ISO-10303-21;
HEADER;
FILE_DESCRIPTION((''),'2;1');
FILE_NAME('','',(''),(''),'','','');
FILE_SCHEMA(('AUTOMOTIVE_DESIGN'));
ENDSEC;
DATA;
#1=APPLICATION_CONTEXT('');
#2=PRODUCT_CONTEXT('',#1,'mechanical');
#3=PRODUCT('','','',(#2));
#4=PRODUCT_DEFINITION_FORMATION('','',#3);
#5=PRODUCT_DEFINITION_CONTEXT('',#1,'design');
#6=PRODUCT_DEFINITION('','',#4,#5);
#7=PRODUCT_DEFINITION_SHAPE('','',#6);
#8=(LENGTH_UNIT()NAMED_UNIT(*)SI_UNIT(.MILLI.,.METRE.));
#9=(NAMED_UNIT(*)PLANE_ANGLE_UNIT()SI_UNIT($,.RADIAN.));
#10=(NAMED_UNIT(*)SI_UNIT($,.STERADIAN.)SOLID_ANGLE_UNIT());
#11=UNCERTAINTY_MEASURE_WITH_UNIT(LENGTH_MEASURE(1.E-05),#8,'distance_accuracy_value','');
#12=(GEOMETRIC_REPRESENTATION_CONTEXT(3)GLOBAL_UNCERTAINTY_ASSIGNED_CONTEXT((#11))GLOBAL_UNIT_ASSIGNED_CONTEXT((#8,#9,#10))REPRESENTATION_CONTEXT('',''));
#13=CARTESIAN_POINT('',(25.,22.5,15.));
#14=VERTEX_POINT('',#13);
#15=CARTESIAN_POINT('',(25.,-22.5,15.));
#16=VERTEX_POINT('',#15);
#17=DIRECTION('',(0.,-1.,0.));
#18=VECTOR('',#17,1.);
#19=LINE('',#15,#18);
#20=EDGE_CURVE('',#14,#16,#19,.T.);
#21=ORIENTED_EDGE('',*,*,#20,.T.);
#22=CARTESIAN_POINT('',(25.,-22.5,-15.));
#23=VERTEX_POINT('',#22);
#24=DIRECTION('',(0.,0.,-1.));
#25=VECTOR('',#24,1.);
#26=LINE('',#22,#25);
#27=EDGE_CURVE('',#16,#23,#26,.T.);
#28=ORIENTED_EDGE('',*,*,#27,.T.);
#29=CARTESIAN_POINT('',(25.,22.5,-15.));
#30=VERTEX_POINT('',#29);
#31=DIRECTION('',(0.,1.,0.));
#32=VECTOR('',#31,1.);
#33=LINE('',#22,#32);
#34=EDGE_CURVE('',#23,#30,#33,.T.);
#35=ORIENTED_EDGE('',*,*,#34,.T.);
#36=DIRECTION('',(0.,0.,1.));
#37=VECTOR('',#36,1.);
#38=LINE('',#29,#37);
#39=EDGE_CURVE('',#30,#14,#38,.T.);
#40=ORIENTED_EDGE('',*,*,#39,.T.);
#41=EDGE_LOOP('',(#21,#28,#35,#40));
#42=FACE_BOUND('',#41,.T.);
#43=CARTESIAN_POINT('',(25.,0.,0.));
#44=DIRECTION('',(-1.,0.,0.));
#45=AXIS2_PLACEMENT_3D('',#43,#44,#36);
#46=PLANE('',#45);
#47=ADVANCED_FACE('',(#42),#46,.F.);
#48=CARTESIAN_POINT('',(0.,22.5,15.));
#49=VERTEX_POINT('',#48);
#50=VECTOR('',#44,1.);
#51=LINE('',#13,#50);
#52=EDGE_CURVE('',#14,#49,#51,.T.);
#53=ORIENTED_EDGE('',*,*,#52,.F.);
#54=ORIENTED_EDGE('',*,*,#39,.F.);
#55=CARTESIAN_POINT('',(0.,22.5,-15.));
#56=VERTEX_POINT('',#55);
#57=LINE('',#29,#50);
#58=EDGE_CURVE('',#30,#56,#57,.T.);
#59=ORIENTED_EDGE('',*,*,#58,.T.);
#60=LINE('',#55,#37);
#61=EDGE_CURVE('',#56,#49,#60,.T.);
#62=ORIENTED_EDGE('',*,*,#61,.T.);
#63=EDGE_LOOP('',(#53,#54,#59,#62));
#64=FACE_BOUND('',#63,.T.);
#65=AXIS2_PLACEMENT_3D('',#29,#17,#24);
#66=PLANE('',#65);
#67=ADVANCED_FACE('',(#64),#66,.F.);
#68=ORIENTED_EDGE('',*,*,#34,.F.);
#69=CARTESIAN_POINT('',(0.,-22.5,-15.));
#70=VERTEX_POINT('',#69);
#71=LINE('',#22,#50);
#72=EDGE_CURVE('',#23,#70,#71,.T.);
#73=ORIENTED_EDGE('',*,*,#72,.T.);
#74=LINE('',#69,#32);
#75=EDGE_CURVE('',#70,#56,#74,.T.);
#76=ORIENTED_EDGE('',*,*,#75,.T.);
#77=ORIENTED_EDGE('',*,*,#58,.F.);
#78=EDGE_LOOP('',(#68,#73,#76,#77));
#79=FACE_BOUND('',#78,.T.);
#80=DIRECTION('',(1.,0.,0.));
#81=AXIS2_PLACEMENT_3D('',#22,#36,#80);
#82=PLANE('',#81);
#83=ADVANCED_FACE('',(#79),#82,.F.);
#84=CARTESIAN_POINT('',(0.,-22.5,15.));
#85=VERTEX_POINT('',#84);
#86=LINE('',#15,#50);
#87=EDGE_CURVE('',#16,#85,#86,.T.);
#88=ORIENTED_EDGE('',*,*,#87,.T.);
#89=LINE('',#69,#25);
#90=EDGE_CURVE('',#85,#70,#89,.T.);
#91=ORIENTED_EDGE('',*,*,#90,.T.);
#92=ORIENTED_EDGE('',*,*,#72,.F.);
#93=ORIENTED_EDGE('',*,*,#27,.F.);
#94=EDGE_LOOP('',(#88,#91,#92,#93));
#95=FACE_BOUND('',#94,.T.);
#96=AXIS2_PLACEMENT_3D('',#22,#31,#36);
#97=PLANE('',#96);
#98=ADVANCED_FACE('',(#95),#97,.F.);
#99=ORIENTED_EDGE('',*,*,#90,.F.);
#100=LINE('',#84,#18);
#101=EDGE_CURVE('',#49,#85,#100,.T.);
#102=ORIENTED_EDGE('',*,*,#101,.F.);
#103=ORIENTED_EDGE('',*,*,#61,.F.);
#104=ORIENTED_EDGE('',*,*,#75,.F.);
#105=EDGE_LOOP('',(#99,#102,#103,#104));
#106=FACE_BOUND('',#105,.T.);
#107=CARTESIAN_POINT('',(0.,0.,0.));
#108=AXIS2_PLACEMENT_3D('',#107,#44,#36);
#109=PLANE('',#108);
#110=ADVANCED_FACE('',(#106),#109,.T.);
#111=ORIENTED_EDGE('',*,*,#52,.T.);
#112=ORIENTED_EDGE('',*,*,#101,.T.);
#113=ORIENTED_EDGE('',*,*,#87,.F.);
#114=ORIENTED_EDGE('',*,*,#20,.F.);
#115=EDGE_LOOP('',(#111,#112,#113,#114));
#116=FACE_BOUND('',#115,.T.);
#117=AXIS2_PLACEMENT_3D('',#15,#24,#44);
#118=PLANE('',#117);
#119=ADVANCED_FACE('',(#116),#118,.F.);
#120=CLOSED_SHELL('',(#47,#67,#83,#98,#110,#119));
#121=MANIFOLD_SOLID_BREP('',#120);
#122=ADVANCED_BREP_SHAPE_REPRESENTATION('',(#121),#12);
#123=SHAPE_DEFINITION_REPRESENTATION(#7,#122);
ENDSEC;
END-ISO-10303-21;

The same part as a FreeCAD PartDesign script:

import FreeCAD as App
import Part
import Sketcher

V = App.Vector

doc = App.newDocument("Part")
body = doc.addObject("PartDesign::Body", "Body")

# Sketch on YZ plane
sketch1 = doc.addObject("Sketcher::SketchObject", "Sketch")
body.addObject(sketch1)
sketch1.AttachmentSupport = (doc.YZ_Plane, [""])
sketch1.MapMode = "FlatFace"
sketch1.addGeometry(Part.LineSegment(V(-22, 15, 0), V(-22, -15, 0)), False)
sketch1.addGeometry(Part.LineSegment(V(-22, -15, 0), V(22, -15, 0)), False)
sketch1.addGeometry(Part.LineSegment(V(22, -15, 0), V(22, 15, 0)), False)
sketch1.addGeometry(Part.LineSegment(V(22, 15, 0), V(-22, 15, 0)), False)
sketch1.addConstraint(Sketcher.Constraint("Coincident", 0, 2, 1, 1))
sketch1.addConstraint(Sketcher.Constraint("Coincident", 1, 2, 2, 1))
sketch1.addConstraint(Sketcher.Constraint("Coincident", 2, 2, 3, 1))
sketch1.addConstraint(Sketcher.Constraint("Coincident", 3, 2, 0, 1))
sketch1.addConstraint(Sketcher.Constraint("Vertical", 0))
sketch1.addConstraint(Sketcher.Constraint("Horizontal", 1))
sketch1.addConstraint(Sketcher.Constraint("Vertical", 2))
sketch1.addConstraint(Sketcher.Constraint("Horizontal", 3))
sketch1.addConstraint(Sketcher.Constraint("Symmetric", 0, 2, 2, 2, -1, 1))
sketch1.addConstraint(Sketcher.Constraint("DistanceX", 1, 1, 1, 2, 45.0))
sketch1.addConstraint(Sketcher.Constraint("DistanceY", 0, 2, 0, 1, 30.0))
pad1 = doc.addObject("PartDesign::Pad", "Pad")
body.addObject(pad1)
pad1.Profile = sketch1
pad1.Length = 25

doc.recompute()
